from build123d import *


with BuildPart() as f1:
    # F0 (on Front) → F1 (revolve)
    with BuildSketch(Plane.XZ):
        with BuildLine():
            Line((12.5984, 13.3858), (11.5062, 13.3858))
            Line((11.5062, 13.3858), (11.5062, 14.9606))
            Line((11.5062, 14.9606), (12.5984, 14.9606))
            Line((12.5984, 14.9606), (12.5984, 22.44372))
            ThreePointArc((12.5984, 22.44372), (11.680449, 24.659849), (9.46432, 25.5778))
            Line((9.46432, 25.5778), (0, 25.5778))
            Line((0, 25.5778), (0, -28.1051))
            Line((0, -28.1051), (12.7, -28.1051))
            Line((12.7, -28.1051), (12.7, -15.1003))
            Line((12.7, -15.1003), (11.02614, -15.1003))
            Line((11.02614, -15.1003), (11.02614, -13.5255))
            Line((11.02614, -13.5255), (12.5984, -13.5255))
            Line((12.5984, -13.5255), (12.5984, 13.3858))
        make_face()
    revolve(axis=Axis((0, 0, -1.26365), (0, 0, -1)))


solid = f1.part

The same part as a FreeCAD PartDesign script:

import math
import FreeCAD as App
import Part
import Sketcher
Q = App.Units.Quantity

doc = App.newDocument("Part")
body = doc.addObject("PartDesign::Body", "Body")

# Sketch on XZ plane
sketch1 = doc.addObject("Sketcher::SketchObject", "Sketch")
body.addObject(sketch1)
sketch1.AttachmentSupport = (doc.XZ_Plane, [""])
sketch1.MapMode = "FlatFace"
sketch1.addGeometry(Part.LineSegment(App.Vector(12.5984, 13.3858, 0), App.Vector(11.5062, 13.3858, 0)), False)
sketch1.addGeometry(Part.LineSegment(App.Vector(11.5062, 13.3858, 0), App.Vector(11.5062, 14.9606, 0)), False)
sketch1.addGeometry(Part.LineSegment(App.Vector(11.5062, 14.9606, 0), App.Vector(12.5984, 14.9606, 0)), False)
sketch1.addGeometry(Part.LineSegment(App.Vector(12.5984, 14.9606, 0), App.Vector(12.5984, 22.44372, 0)), False)
sketch1.addGeometry(Part.ArcOfCircle(Part.Circle(App.Vector(9.464319, 22.443719, 0), App.Vector(0, 0, 1), 3.134081), math.radians(0.000014), math.radians(89.999986)), False)
sketch1.addGeometry(Part.LineSegment(App.Vector(9.46432, 25.5778, 0), App.Vector(0, 25.5778, 0)), False)
sketch1.addGeometry(Part.LineSegment(App.Vector(0, 25.5778, 0), App.Vector(0, -28.1051, 0)), False)
sketch1.addGeometry(Part.LineSegment(App.Vector(0, -28.1051, 0), App.Vector(12.7, -28.1051, 0)), False)
sketch1.addGeometry(Part.LineSegment(App.Vector(12.7, -28.1051, 0), App.Vector(12.7, -15.1003, 0)), False)
sketch1.addGeometry(Part.LineSegment(App.Vector(12.7, -15.1003, 0), App.Vector(11.02614, -15.1003, 0)), False)
sketch1.addGeometry(Part.LineSegment(App.Vector(11.02614, -15.1003, 0), App.Vector(11.02614, -13.5255, 0)), False)
sketch1.addGeometry(Part.LineSegment(App.Vector(11.02614, -13.5255, 0), App.Vector(12.5984, -13.5255, 0)), False)
sketch1.addGeometry(Part.LineSegment(App.Vector(12.5984, -13.5255, 0), App.Vector(12.5984, 13.3858, 0)), False)
sketch1.addConstraint(Sketcher.Constraint("Coincident", 0, 2, 1, 1))
sketch1.addConstraint(Sketcher.Constraint("Coincident", 1, 2, 2, 1))
sketch1.addConstraint(Sketcher.Constraint("Coincident", 2, 2, 3, 1))
sketch1.addConstraint(Sketcher.Constraint("Tangent", 3, 2, 4, 1))
sketch1.addConstraint(Sketcher.Constraint("Tangent", 4, 2, 5, 1))
sketch1.addConstraint(Sketcher.Constraint("Coincident", 5, 2, 6, 1))
sketch1.addConstraint(Sketcher.Constraint("Coincident", 6, 2, 7, 1))
sketch1.addConstraint(Sketcher.Constraint("Coincident", 7, 2, 8, 1))
sketch1.addConstraint(Sketcher.Constraint("Coincident", 8, 2, 9, 1))
sketch1.addConstraint(Sketcher.Constraint("Coincident", 9, 2, 10, 1))
sketch1.addConstraint(Sketcher.Constraint("Coincident", 10, 2, 11, 1))
sketch1.addConstraint(Sketcher.Constraint("Coincident", 11, 2, 12, 1))
sketch1.addConstraint(Sketcher.Constraint("Coincident", 12, 2, 0, 1))
sketch1.addConstraint(Sketcher.Constraint("Horizontal", 0))
sketch1.addConstraint(Sketcher.Constraint("Vertical", 1))
sketch1.addConstraint(Sketcher.Constraint("Horizontal", 2))
sketch1.addConstraint(Sketcher.Constraint("Vertical", 3))
sketch1.addConstraint(Sketcher.Constraint("Horizontal", 5))
sketch1.addConstraint(Sketcher.Constraint("Vertical", 6))
sketch1.addConstraint(Sketcher.Constraint("Horizontal", 7))
sketch1.addConstraint(Sketcher.Constraint("Vertical", 8))
sketch1.addConstraint(Sketcher.Constraint("Horizontal", 9))
sketch1.addConstraint(Sketcher.Constraint("Vertical", 10))
sketch1.addConstraint(Sketcher.Constraint("Horizontal", 11))
sketch1.addConstraint(Sketcher.Constraint("Vertical", 12))
sketch1.addConstraint(Sketcher.Constraint("PointOnObject", 5, 2, -2))
sketch1.addConstraint(Sketcher.Constraint("Vertical", 3, 2, 11, 2))
sketch1.addConstraint(Sketcher.Constraint("Equal", 1, 10))
sketch1.addConstraint(Sketcher.Constraint("DistanceX", 7, 1, 7, 2, Q("0.5 in")))
sketch1.addConstraint(Sketcher.Constraint("DistanceX", 0, 2, 0, 1, Q("0.043 in")))
sketch1.addConstraint(Sketcher.Constraint("DistanceY", 1, 1, 1, 2, Q("0.062 in")))
sketch1.addConstraint(Sketcher.Constraint("DistanceY", 8, 1, 8, 2, Q("0.512 in")))
sketch1.addConstraint(Sketcher.Constraint("DistanceY", 0, 2, 4, 2, Q("0.48 in")))
sketch1.addConstraint(Sketcher.Constraint("DistanceX", 9, 2, 9, 1, Q("0.0659 in")))
sketch1.addConstraint(Sketcher.Constraint("DistanceX", 11, 1, 11, 2, Q("0.0619 in")))
sketch1.addConstraint(Sketcher.Constraint("DistanceY", 6, 2, 6, 1, Q("2.1135 in")))
sketch1.addConstraint(Sketcher.Constraint("DistanceY", -1, 1, 0, 2, Q("0.527 in")))
sketch1.addConstraint(Sketcher.Constraint("Radius", 4, Q("3.134081 mm")))
revolution = doc.addObject("PartDesign::Revolution", "Revolution")
body.addObject(revolution)
revolution.Profile = sketch1
revolution.ReferenceAxis = (sketch1, ["V_Axis"])
revolution.Angle = 360

doc.recompute()
